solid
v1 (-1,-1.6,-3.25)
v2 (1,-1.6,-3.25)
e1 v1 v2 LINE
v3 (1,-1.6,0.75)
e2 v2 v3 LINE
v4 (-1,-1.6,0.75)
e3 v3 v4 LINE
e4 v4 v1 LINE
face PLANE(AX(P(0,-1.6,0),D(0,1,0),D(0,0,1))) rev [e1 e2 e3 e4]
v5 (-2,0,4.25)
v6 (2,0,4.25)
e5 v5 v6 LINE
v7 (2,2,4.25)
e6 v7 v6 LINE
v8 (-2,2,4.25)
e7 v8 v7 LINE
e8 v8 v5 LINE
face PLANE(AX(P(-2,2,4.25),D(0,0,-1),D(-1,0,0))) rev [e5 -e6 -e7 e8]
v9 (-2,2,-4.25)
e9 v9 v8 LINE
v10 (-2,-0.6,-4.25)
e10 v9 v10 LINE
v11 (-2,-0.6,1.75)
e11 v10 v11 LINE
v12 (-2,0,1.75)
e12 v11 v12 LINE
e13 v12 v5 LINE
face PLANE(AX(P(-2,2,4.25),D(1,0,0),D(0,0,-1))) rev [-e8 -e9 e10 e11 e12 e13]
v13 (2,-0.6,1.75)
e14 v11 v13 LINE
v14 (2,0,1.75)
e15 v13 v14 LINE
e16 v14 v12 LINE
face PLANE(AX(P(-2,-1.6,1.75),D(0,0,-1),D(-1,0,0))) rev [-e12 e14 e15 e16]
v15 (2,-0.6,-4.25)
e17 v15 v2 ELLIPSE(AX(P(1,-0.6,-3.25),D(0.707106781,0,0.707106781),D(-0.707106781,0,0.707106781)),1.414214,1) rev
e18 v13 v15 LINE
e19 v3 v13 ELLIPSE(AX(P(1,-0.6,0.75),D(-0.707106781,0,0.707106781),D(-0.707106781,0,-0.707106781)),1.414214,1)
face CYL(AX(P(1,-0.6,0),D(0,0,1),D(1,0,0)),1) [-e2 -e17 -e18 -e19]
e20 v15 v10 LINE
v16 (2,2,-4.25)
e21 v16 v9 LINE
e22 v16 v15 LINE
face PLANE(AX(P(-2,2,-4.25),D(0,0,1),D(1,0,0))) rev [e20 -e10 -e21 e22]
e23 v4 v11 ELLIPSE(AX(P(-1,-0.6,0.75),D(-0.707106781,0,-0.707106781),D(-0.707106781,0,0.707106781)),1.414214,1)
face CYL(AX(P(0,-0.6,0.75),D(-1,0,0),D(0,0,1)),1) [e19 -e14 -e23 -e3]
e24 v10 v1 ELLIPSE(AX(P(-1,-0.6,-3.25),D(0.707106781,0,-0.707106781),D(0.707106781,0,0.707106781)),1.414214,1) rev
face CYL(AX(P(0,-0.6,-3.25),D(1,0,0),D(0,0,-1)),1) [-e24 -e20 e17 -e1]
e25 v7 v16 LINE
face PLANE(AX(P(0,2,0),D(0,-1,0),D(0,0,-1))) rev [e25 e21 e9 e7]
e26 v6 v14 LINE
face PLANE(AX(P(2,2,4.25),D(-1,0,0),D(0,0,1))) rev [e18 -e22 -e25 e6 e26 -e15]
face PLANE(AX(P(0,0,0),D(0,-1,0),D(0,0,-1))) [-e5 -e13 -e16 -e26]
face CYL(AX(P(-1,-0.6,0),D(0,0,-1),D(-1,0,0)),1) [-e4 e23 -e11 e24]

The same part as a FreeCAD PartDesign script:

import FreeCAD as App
import Part
import Sketcher
from FreeCAD import Vector
Q = App.Units.Quantity


def edges_at(feature, points):
    """Names of the edges that pass closest to the given points."""
    edges = feature.Shape.Edges
    near = lambda p: min(range(len(edges)), key=lambda i: edges[i].distToShape(Part.Vertex(*p))[0])
    return sorted({f"Edge{near(p) + 1}" for p in points})


def add_polygon(sketch, points):
    """Adds a closed chain of lines whose ends are joined by coincident constraints."""
    first, n = sketch.GeometryCount, len(points)
    for a, b in zip(points, points[1:] + points[:1]):
        sketch.addGeometry(Part.LineSegment(App.Vector(*a, 0), App.Vector(*b, 0)), False)
    for i in range(n):
        sketch.addConstraint(Sketcher.Constraint("Coincident", first + i, 2, first + (i + 1) % n, 1))

doc = App.newDocument("Part")
params = doc.addObject("Spreadsheet::Sheet", "Params")
for row, (alias, value) in enumerate([
    ("sketch1_width", "4 mm"),
    ("sketch1_height", "8.5 mm"),
    ("pad1_length", "2 mm"),
    ("sketch2_width", "4 mm"),
    ("sketch2_height", "6 mm"),
    ("pad2_length", "1.6 mm"),
    ("fillet_radius", "1 mm"),
], start=1):
    params.set(f"A{row}", alias)
    params.set(f"B{row}", "=" + value)
    params.setAlias(f"B{row}", alias)

body = doc.addObject("PartDesign::Body", "Body")

# Sketch on XZ plane
sketch1 = body.newObject("Sketcher::SketchObject", "Sketch")
sketch1.AttachmentSupport = (doc.getObject("XZ_Plane"), [""])
sketch1.MapMode = "FlatFace"
add_polygon(sketch1, [(-2, -4.2), (-2, 4.2), (2, 4.2), (2, -4.2)])  # lines 0-3
sketch1.addConstraint([
    Sketcher.Constraint("Vertical", 0),
    Sketcher.Constraint("Horizontal", 1),
    Sketcher.Constraint("Vertical", 2),
    Sketcher.Constraint("Horizontal", 3),
    Sketcher.Constraint("Symmetric", 0, 2, 2, 2, -1, 1),
    Sketcher.Constraint("DistanceX", 1, 1, 1, 2, Q("4 mm")),
    Sketcher.Constraint("DistanceY", 0, 1, 0, 2, Q("8.5 mm")),
])
sketch1.setExpression("Constraints[9]", "Params.sketch1_width")
sketch1.setExpression("Constraints[10]", "Params.sketch1_height")
pad1 = body.newObject("PartDesign::Pad", "Pad")
pad1.Profile = sketch1
pad1.setExpression("Length", "Params.pad1_length")
pad1.Reversed = True

# Sketch on XZ plane
sketch2 = body.newObject("Sketcher::SketchObject", "Sketch001")
sketch2.AttachmentSupport = (doc.getObject("XZ_Plane"), [""])
sketch2.MapMode = "FlatFace"
add_polygon(sketch2, [(-2, 1.8), (-2, -4.2), (2, -4.2), (2, 1.8)])  # lines 0-3
sketch2.addConstraint([
    Sketcher.Constraint("Vertical", 0),
    Sketcher.Constraint("Horizontal", 1),
    Sketcher.Constraint("Vertical", 2),
    Sketcher.Constraint("Horizontal", 3),
    Sketcher.Constraint("DistanceX", 1, 1, 1, 2, Q("4 mm")),
    Sketcher.Constraint("DistanceY", 0, 2, 0, 1, Q("6 mm")),
    Sketcher.Constraint("DistanceX", 0, 2, -1, 1, Q("2 mm")),
    Sketcher.Constraint("DistanceY", 0, 2, -1, 1, Q("4.25 mm")),
])
sketch2.setExpression("Constraints[8]", "Params.sketch2_width")
sketch2.setExpression("Constraints[9]", "Params.sketch2_height")
pad2 = body.newObject("PartDesign::Pad", "Pad001")
pad2.Profile = sketch2
pad2.setExpression("Length", "Params.pad2_length")
doc.recompute()

fillet = body.newObject("PartDesign::Fillet", "Fillet")
fillet.Base = (pad2, edges_at(pad2, [
    (-2, -1.6, -1.25),
    (0, -1.6, -4.25),
    (2, -1.6, -1.25),
    (0, -1.6, 1.75),
]))
fillet.setExpression("Radius", "Params.fillet_radius")

doc.recompute()
